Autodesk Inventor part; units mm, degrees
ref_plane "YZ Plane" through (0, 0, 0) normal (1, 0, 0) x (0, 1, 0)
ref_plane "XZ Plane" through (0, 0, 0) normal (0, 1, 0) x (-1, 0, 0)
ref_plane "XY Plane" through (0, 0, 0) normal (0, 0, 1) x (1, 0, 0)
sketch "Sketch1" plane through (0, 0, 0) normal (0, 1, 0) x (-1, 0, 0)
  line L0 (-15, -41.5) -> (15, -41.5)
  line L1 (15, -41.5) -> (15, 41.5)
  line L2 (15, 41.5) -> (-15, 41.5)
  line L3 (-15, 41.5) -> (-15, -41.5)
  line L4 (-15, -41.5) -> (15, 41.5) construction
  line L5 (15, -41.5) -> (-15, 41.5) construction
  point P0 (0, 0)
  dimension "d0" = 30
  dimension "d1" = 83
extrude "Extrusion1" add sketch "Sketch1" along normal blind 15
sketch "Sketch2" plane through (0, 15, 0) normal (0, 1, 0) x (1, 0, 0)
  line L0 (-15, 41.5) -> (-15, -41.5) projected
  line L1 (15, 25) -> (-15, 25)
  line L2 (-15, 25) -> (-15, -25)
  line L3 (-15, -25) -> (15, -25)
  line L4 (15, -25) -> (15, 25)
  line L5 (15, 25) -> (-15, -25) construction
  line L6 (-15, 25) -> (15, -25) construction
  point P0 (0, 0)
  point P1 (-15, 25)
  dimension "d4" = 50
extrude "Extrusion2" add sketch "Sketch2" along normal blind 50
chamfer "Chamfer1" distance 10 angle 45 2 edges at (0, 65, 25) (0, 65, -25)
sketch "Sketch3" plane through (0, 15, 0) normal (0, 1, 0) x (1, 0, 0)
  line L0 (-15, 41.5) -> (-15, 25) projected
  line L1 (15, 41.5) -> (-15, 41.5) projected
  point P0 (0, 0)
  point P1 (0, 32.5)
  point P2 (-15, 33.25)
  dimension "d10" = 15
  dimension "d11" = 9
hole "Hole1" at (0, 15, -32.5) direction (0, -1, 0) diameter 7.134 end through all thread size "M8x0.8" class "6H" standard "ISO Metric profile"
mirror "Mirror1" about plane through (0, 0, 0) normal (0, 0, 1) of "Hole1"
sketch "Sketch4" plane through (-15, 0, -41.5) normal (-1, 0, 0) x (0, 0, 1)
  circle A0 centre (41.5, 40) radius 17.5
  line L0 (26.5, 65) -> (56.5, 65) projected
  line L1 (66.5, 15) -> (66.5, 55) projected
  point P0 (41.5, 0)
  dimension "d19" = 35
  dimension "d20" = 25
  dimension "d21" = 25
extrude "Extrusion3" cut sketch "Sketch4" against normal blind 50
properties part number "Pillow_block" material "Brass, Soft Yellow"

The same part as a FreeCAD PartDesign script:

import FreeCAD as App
import Part
import Sketcher
Q = App.Units.Quantity


def edges_at(feature, points):
    """Names of the edges that pass closest to the given points."""
    edges = feature.Shape.Edges
    near = lambda p: min(range(len(edges)), key=lambda i: edges[i].distToShape(Part.Vertex(*p))[0])
    return sorted({f"Edge{near(p) + 1}" for p in points})


def add_polygon(sketch, points):
    """Adds a closed chain of lines whose ends are joined by coincident constraints."""
    first, n = sketch.GeometryCount, len(points)
    for a, b in zip(points, points[1:] + points[:1]):
        sketch.addGeometry(Part.LineSegment(App.Vector(*a, 0), App.Vector(*b, 0)), False)
    for i in range(n):
        sketch.addConstraint(Sketcher.Constraint("Coincident", first + i, 2, first + (i + 1) % n, 1))

doc = App.newDocument("Part")
params = doc.addObject("Spreadsheet::Sheet", "Params")
for row, (alias, value) in enumerate([
    ("sketch1_width", "30 mm"),
    ("sketch1_height", "83 mm"),
    ("pad1_length", "15 mm"),
    ("sketch2_height", "50 mm"),
    ("sketch2_width", "30 mm"),
    ("pad2_length", "50 mm"),
    ("chamfer_size", "10 mm"),
    ("hole_diameter", "7.134 mm"),
    ("sketch4_diameter", "35 mm"),
    ("pocket1_length", "50 mm"),
], start=1):
    params.set(f"A{row}", alias)
    params.set(f"B{row}", "=" + value)
    params.setAlias(f"B{row}", alias)

body = doc.addObject("PartDesign::Body", "Body")

sketch1 = body.newObject("Sketcher::SketchObject", "Sketch")
sketch1.AttachmentSupport = (doc.getObject("XZ_Plane"), [""])
sketch1.MapMode = "FlatFace"
add_polygon(sketch1, [(15, 42), (15, -42), (-15, -42), (-15, 42)])
sketch1.addConstraint([
    Sketcher.Constraint("Vertical", 0),
    Sketcher.Constraint("Horizontal", 1),
    Sketcher.Constraint("Vertical", 2),
    Sketcher.Constraint("Horizontal", 3),
    Sketcher.Constraint("Symmetric", 0, 2, 2, 2, -1, 1),
    Sketcher.Constraint("DistanceX", 1, 2, 1, 1, Q("30 mm")),
    Sketcher.Constraint("DistanceY", 0, 2, 0, 1, Q("83 mm")),
])
sketch1.setExpression("Constraints[9]", "Params.sketch1_width")
sketch1.setExpression("Constraints[10]", "Params.sketch1_height")
pad1 = body.newObject("PartDesign::Pad", "Pad")
pad1.Profile = sketch1
pad1.setExpression("Length", "Params.pad1_length")
pad1.Reversed = True

sketch2 = body.newObject("Sketcher::SketchObject", "Sketch001")
sketch2.AttachmentSupport = (doc.getObject("XZ_Plane"), [""])
sketch2.MapMode = "FlatFace"
sketch2.AttachmentOffset = App.Placement(App.Vector(0, 0, -15), App.Rotation())
add_polygon(sketch2, [(15, -25), (-15, -25), (-15, 25), (15, 25)])
sketch2.addConstraint([
    Sketcher.Constraint("Horizontal", 0),
    Sketcher.Constraint("Vertical", 1),
    Sketcher.Constraint("Horizontal", 2),
    Sketcher.Constraint("Vertical", 3),
    Sketcher.Constraint("Symmetric", 0, 2, 2, 2, -1, 1),
    Sketcher.Constraint("DistanceY", 1, 1, 1, 2, Q("50 mm")),
    Sketcher.Constraint("DistanceX", 0, 2, 0, 1, Q("30 mm")),
])
sketch2.setExpression("Constraints[9]", "Params.sketch2_height")
sketch2.setExpression("Constraints[10]", "Params.sketch2_width")
pad2 = body.newObject("PartDesign::Pad", "Pad001")
pad2.Profile = sketch2
pad2.setExpression("Length", "Params.pad2_length")
pad2.Reversed = True
doc.recompute()

chamfer = body.newObject("PartDesign::Chamfer", "Chamfer")
chamfer.Base = (pad2, edges_at(pad2, [(0, 65, 25), (0, 65, -25)]))
chamfer.setExpression("Size", "Params.chamfer_size")

sketch3 = body.newObject("Sketcher::SketchObject", "Sketch002")
sketch3.AttachmentSupport = (doc.getObject("XZ_Plane"), [""])
sketch3.MapMode = "FlatFace"
sketch3.AttachmentOffset = App.Placement(App.Vector(0, 0, -15), App.Rotation())
sketch3.addGeometry(Part.Circle(App.Vector(0, -32.5, 0), App.Vector(0, 0, 1), 3.6), False)
sketch3.addConstraint([
    Sketcher.Constraint("PointOnObject", 0, 3, -2),
    Sketcher.Constraint("Diameter", 0, Q("7.134 mm")),
    Sketcher.Constraint("DistanceY", 0, 3, -1, 1, Q("32.5 mm")),
])
doc.recompute()
hole = body.newObject("PartDesign::Hole", "Hole")
hole.Profile = sketch3
hole.ThreadType = "None"
hole.setExpression("Diameter", "Params.hole_diameter")
hole.DepthType = "ThroughAll"
hole.Reversed = True
doc.recompute()

mirrored = body.newObject("PartDesign::Mirrored", "Mirrored")
mirrored.Originals = [hole]
mirrored.MirrorPlane = (doc.getObject("XY_Plane"), [""])
body.Tip = mirrored

sketch4 = body.newObject("Sketcher::SketchObject", "Sketch003")
sketch4.AttachmentSupport = (doc.getObject("YZ_Plane"), [""])
sketch4.MapMode = "FlatFace"
sketch4.AttachmentOffset = App.Placement(App.Vector(0, 0, -15), App.Rotation())
sketch4.addGeometry(Part.Circle(App.Vector(40, 0, 0), App.Vector(0, 0, 1), 18), False)
sketch4.addConstraint([
    Sketcher.Constraint("PointOnObject", 0, 3, -1),
    Sketcher.Constraint("Diameter", 0, Q("35 mm")),
    Sketcher.Constraint("DistanceX", -1, 1, 0, 3, Q("40 mm")),
])
sketch4.setExpression("Constraints[1]", "Params.sketch4_diameter")
pocket1 = body.newObject("PartDesign::Pocket", "Pocket")
pocket1.Profile = sketch4
pocket1.setExpression("Length", "Params.pocket1_length")
pocket1.Reversed = True

doc.recompute()
